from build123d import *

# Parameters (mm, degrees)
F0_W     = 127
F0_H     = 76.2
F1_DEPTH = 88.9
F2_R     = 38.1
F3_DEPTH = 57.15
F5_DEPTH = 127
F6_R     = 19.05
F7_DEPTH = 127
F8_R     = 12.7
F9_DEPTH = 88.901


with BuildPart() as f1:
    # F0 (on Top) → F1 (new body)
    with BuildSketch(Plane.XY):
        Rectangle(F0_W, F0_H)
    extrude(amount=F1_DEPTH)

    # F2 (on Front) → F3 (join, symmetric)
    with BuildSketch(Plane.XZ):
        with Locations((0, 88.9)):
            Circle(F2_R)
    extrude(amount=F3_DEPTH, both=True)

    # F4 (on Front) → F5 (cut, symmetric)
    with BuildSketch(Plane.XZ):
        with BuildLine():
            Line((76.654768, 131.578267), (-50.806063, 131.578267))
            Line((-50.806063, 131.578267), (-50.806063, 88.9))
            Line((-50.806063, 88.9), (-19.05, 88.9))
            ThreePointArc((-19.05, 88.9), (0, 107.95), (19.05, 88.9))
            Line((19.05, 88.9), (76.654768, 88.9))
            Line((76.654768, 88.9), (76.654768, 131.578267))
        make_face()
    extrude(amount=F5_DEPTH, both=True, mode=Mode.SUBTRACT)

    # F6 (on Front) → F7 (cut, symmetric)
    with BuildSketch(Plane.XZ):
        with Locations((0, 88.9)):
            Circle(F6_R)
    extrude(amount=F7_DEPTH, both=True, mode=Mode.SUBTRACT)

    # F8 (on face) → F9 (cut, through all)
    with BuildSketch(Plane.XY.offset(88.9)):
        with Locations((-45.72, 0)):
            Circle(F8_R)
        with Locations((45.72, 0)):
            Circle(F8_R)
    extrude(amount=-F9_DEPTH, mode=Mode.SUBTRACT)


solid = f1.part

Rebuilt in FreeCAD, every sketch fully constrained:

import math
import FreeCAD as App
import Part
import Sketcher
Q = App.Units.Quantity


def add_polygon(sketch, points):
    """Adds a closed chain of lines whose ends are joined by coincident constraints."""
    first, n = sketch.GeometryCount, len(points)
    for a, b in zip(points, points[1:] + points[:1]):
        sketch.addGeometry(Part.LineSegment(App.Vector(*a, 0), App.Vector(*b, 0)), False)
    for i in range(n):
        sketch.addConstraint(Sketcher.Constraint("Coincident", first + i, 2, first + (i + 1) % n, 1))

doc = App.newDocument("Part")
body = doc.addObject("PartDesign::Body", "Body")

sketch1 = body.newObject("Sketcher::SketchObject", "Sketch")
sketch1.AttachmentSupport = (doc.getObject("XY_Plane"), [""])
sketch1.MapMode = "FlatFace"
add_polygon(sketch1, [(-64, 38), (-64, -38), (64, -38), (64, 38)])
sketch1.addConstraint(Sketcher.Constraint("Vertical", 0))
sketch1.addConstraint(Sketcher.Constraint("Horizontal", 1))
sketch1.addConstraint(Sketcher.Constraint("Vertical", 2))
sketch1.addConstraint(Sketcher.Constraint("Horizontal", 3))
sketch1.addConstraint(Sketcher.Constraint("Symmetric", 0, 2, 2, 2, -1, 1))
sketch1.addConstraint(Sketcher.Constraint("DistanceX", 1, 1, 1, 2, Q("5 in")))
sketch1.addConstraint(Sketcher.Constraint("DistanceY", 0, 2, 0, 1, Q("3 in")))
pad1 = body.newObject("PartDesign::Pad", "Pad")
pad1.Profile = sketch1
pad1.Length = Q("3.5 in")

sketch2 = body.newObject("Sketcher::SketchObject", "Sketch001")
sketch2.AttachmentSupport = (doc.getObject("XZ_Plane"), [""])
sketch2.MapMode = "FlatFace"
sketch2.addGeometry(Part.Circle(App.Vector(0, 89, 0), App.Vector(0, 0, 1), 38), False)
sketch2.addConstraint(Sketcher.Constraint("PointOnObject", 0, 3, -2))
sketch2.addConstraint(Sketcher.Constraint("Diameter", 0, Q("3 in")))
sketch2.addConstraint(Sketcher.Constraint("DistanceY", -1, 1, 0, 3, Q("3.5 in")))
pad2 = body.newObject("PartDesign::Pad", "Pad001")
pad2.Profile = sketch2
pad2.Length = Q("4.5 in")
pad2.Midplane = True

sketch3 = body.newObject("Sketcher::SketchObject", "Sketch002")
sketch3.AttachmentSupport = (doc.getObject("XZ_Plane"), [""])
sketch3.MapMode = "FlatFace"
sketch3.addGeometry(Part.LineSegment(App.Vector(77, 132, 0), App.Vector(-51, 132, 0)), False)
sketch3.addGeometry(Part.LineSegment(App.Vector(-51, 132, 0), App.Vector(-51, 89, 0)), False)
sketch3.addGeometry(Part.LineSegment(App.Vector(-51, 89, 0), App.Vector(-19, 89, 0)), False)
sketch3.addGeometry(Part.ArcOfCircle(Part.Circle(App.Vector(0, 89, 0), App.Vector(0, 0, 1), 19), math.radians(0), math.radians(180)), False)
sketch3.addGeometry(Part.LineSegment(App.Vector(19, 89, 0), App.Vector(77, 89, 0)), False)
sketch3.addGeometry(Part.LineSegment(App.Vector(77, 89, 0), App.Vector(77, 132, 0)), False)
sketch3.addConstraint(Sketcher.Constraint("Coincident", 0, 2, 1, 1))
sketch3.addConstraint(Sketcher.Constraint("Coincident", 1, 2, 2, 1))
sketch3.addConstraint(Sketcher.Constraint("Coincident", 2, 2, 3, 2))
sketch3.addConstraint(Sketcher.Constraint("Coincident", 3, 1, 4, 1))
sketch3.addConstraint(Sketcher.Constraint("Coincident", 4, 2, 5, 1))
sketch3.addConstraint(Sketcher.Constraint("Coincident", 5, 2, 0, 1))
sketch3.addConstraint(Sketcher.Constraint("Horizontal", 0))
sketch3.addConstraint(Sketcher.Constraint("Vertical", 1))
sketch3.addConstraint(Sketcher.Constraint("Horizontal", 2))
sketch3.addConstraint(Sketcher.Constraint("Horizontal", 4))
sketch3.addConstraint(Sketcher.Constraint("Vertical", 5))
sketch3.addConstraint(Sketcher.Constraint("Symmetric", 2, 2, 3, 1, -2))
sketch3.addConstraint(Sketcher.Constraint("Horizontal", 3, 3, 1, 2))
sketch3.addConstraint(Sketcher.Constraint("Radius", 3, Q("0.75 in")))
sketch3.addConstraint(Sketcher.Constraint("DistanceY", -1, 1, 3, 3, Q("3.5 in")))
sketch3.addConstraint(Sketcher.Constraint("DistanceX", 0, 2, 0, 1, 127.460831))
sketch3.addConstraint(Sketcher.Constraint("DistanceX", 4, 1, 4, 2, 57.604768))
sketch3.addConstraint(Sketcher.Constraint("DistanceY", 1, 2, 1, 1, 42.678267))
pocket1 = body.newObject("PartDesign::Pocket", "Pocket")
pocket1.Profile = sketch3
pocket1.Length = Q("10 in")
pocket1.Midplane = True

sketch4 = body.newObject("Sketcher::SketchObject", "Sketch003")
sketch4.AttachmentSupport = (doc.getObject("XZ_Plane"), [""])
sketch4.MapMode = "FlatFace"
sketch4.addGeometry(Part.Circle(App.Vector(0, 89, 0), App.Vector(0, 0, 1), 19), False)
sketch4.addConstraint(Sketcher.Constraint("PointOnObject", 0, 3, -2))
sketch4.addConstraint(Sketcher.Constraint("Diameter", 0, Q("1.5 in")))
sketch4.addConstraint(Sketcher.Constraint("DistanceY", -1, 1, 0, 3, Q("3.5 in")))
pocket2 = body.newObject("PartDesign::Pocket", "Pocket001")
pocket2.Profile = sketch4
pocket2.Length = Q("10 in")
pocket2.Midplane = True

sketch5 = body.newObject("Sketcher::SketchObject", "Sketch004")
sketch5.AttachmentSupport = (doc.getObject("XY_Plane"), [""])
sketch5.MapMode = "FlatFace"
sketch5.AttachmentOffset = App.Placement(App.Vector(0, 0, 3.5 * 25.4), App.Rotation())
sketch5.addGeometry(Part.Circle(App.Vector(-46, 0, 0), App.Vector(0, 0, 1), 13), False)
sketch5.addGeometry(Part.Circle(App.Vector(46, 0, 0), App.Vector(0, 0, 1), 13), False)
sketch5.addConstraint(Sketcher.Constraint("Equal", 0, 1))
sketch5.addConstraint(Sketcher.Constraint("Symmetric", 0, 3, 1, 3, -1, 1))
sketch5.addConstraint(Sketcher.Constraint("PointOnObject", 0, 3, -1))
sketch5.addConstraint(Sketcher.Constraint("Diameter", 0, Q("1 in")))
sketch5.addConstraint(Sketcher.Constraint("DistanceX", 0, 3, -1, 1, Q("1.8 in")))
pocket3 = body.newObject("PartDesign::Pocket", "Pocket002")
pocket3.Profile = sketch5
pocket3.Type = "ThroughAll"

doc.recompute()
